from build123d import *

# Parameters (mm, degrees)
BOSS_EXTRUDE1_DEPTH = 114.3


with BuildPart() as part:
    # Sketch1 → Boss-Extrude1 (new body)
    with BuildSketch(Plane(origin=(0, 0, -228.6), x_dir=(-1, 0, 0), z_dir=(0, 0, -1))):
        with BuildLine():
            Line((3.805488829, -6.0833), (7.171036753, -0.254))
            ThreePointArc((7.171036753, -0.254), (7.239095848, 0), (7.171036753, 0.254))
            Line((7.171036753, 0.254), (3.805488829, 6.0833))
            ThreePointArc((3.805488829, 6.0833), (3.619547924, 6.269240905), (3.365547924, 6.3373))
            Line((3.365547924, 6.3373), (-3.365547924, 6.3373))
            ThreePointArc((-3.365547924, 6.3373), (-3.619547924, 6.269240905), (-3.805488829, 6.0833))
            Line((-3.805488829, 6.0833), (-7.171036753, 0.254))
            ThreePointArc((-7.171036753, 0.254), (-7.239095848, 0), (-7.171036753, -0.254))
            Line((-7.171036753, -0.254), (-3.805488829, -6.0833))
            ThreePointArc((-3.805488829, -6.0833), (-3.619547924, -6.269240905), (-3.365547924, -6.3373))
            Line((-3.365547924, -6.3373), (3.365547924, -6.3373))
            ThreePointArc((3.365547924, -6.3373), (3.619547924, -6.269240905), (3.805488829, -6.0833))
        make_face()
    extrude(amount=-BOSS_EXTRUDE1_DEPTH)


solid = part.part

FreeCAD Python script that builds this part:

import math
import FreeCAD as App
import Part
import Sketcher
from FreeCAD import Vector
Q = App.Units.Quantity

doc = App.newDocument("Part")
params = doc.addObject("Spreadsheet::Sheet", "Params")
for row, (alias, value) in enumerate([
    ("sketch1_radius", "0.02 in"),
    ("pad1_length", "4.5 in"),
], start=1):
    params.set(f"A{row}", alias)
    params.set(f"B{row}", "=" + value)
    params.setAlias(f"B{row}", alias)

body = doc.addObject("PartDesign::Body", "Body")

sketch1 = body.newObject("Sketcher::SketchObject", "Sketch")
sketch1.AttachmentSupport = (doc.getObject("XY_Plane"), [""])
sketch1.MapMode = "FlatFace"
sketch1.AttachmentOffset = App.Placement(Vector(0, 0, -9 * 25.4), App.Rotation())
sketch1.addGeometry([
    Part.LineSegment(Vector(-3.8, -6.1, 0), Vector(-7.2, -0.3, 0)),
    Part.ArcOfCircle(Part.Circle(Vector(-6.7, 0, 0), Vector(0, 0, 1), 0.5), math.radians(150), math.radians(210)),
    Part.LineSegment(Vector(-7.2, 0.3, 0), Vector(-3.8, 6.1, 0)),
    Part.ArcOfCircle(Part.Circle(Vector(-3.4, 5.8, 0), Vector(0, 0, 1), 0.5), math.radians(90), math.radians(150)),
    Part.LineSegment(Vector(-3.4, 6.3, 0), Vector(3.4, 6.3, 0)),
    Part.ArcOfCircle(Part.Circle(Vector(3.4, 5.8, 0), Vector(0, 0, 1), 0.5), math.radians(30), math.radians(90)),
    Part.LineSegment(Vector(3.8, 6.1, 0), Vector(7.2, 0.3, 0)),
    Part.ArcOfCircle(Part.Circle(Vector(6.7, 0, 0), Vector(0, 0, 1), 0.5), math.radians(-30), math.radians(30)),
    Part.LineSegment(Vector(7.2, -0.3, 0), Vector(3.8, -6.1, 0)),
    Part.ArcOfCircle(Part.Circle(Vector(3.4, -5.8, 0), Vector(0, 0, 1), 0.5), math.radians(-90), math.radians(-30)),
    Part.LineSegment(Vector(3.4, -6.3, 0), Vector(-3.4, -6.3, 0)),
    Part.ArcOfCircle(Part.Circle(Vector(-3.4, -5.8, 0), Vector(0, 0, 1), 0.5), math.radians(-150), math.radians(-90)),
], False)
sketch1.addConstraint([
    Sketcher.Constraint("Tangent", 0, 2, 1, 2),
    Sketcher.Constraint("Tangent", 1, 1, 2, 1),
    Sketcher.Constraint("Tangent", 2, 2, 3, 2),
    Sketcher.Constraint("Tangent", 3, 1, 4, 1),
    Sketcher.Constraint("Tangent", 4, 2, 5, 2),
    Sketcher.Constraint("Tangent", 5, 1, 6, 1),
    Sketcher.Constraint("Tangent", 6, 2, 7, 2),
    Sketcher.Constraint("Tangent", 7, 1, 8, 1),
    Sketcher.Constraint("Tangent", 8, 2, 9, 2),
    Sketcher.Constraint("Tangent", 9, 1, 10, 1),
    Sketcher.Constraint("Tangent", 10, 2, 11, 2),
    Sketcher.Constraint("Tangent", 11, 1, 0, 1),
    Sketcher.Constraint("Horizontal", 4),
    Sketcher.Constraint("Horizontal", 10),
    Sketcher.Constraint("Equal", 1, 3),
    Sketcher.Constraint("Equal", 3, 5),
    Sketcher.Constraint("Equal", 5, 7),
    Sketcher.Constraint("Equal", 7, 9),
    Sketcher.Constraint("Equal", 9, 11),
    Sketcher.Constraint("Symmetric", 1, 3, 7, 3, -1, 1),
    Sketcher.Constraint("Symmetric", 3, 3, 9, 3, -1, 1),
    Sketcher.Constraint("Symmetric", 2, 2, 5, 1, -2),
    Sketcher.Constraint("Parallel", 0, 6),
    Sketcher.Constraint("Radius", 1, Q("0.02 in")),
    Sketcher.Constraint("Angle", 0, Q("120 deg")),
    Sketcher.Constraint("DistanceY", 9, 3, 5, 3, Q("0.459 in")),
    Sketcher.Constraint("DistanceX", 4, 1, 4, 2, 6.731096),
])
sketch1.setExpression("Constraints[23]", "Params.sketch1_radius")
pad1 = body.newObject("PartDesign::Pad", "Pad")
pad1.Profile = sketch1
pad1.setExpression("Length", "Params.pad1_length")

doc.recompute()
